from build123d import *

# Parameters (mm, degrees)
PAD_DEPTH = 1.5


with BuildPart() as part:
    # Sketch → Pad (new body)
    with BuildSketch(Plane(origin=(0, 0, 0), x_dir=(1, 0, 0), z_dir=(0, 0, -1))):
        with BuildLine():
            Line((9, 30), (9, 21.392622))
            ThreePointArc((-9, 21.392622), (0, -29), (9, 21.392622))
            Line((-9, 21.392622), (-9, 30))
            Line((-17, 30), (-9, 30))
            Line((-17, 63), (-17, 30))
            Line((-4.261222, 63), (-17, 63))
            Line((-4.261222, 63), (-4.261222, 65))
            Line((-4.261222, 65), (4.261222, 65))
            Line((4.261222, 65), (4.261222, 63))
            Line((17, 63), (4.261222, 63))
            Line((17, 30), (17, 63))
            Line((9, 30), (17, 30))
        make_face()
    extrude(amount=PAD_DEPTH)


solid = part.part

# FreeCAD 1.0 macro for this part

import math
import FreeCAD as App
import Part
import Sketcher
from FreeCAD import Vector
Q = App.Units.Quantity

doc = App.newDocument("Part")
body = doc.addObject("PartDesign::Body", "Body")

# Sketch on XY plane
sketch1 = body.newObject("Sketcher::SketchObject", "Sketch")
sketch1.AttachmentSupport = (doc.getObject("XY_Plane"), [""])
sketch1.MapMode = "FlatFace"
sketch1.addGeometry([
    Part.LineSegment(Vector(9, -21.4, 0), Vector(9, -30, 0)),  # 0
    Part.LineSegment(Vector(9, -30, 0), Vector(17, -30, 0)),  # 1
    Part.LineSegment(Vector(17, -30, 0), Vector(17, -63, 0)),  # 2
    Part.LineSegment(Vector(17, -63, 0), Vector(4.3, -63, 0)),  # 3
    Part.LineSegment(Vector(4.3, -63, 0), Vector(4.3, -65, 0)),  # 4
    Part.LineSegment(Vector(4.3, -65, 0), Vector(-4.3, -65, 0)),  # 5
    Part.LineSegment(Vector(-4.3, -65, 0), Vector(-4.3, -63, 0)),  # 6
    Part.LineSegment(Vector(-4.3, -63, 0), Vector(-17, -63, 0)),  # 7
    Part.LineSegment(Vector(-17, -63, 0), Vector(-17, -30, 0)),  # 8
    Part.LineSegment(Vector(-17, -30, 0), Vector(-9, -30, 0)),  # 9
    Part.LineSegment(Vector(-9, -30, 0), Vector(-9, -21.4, 0)),  # 10
    Part.ArcOfCircle(Part.Circle(Vector(0, 3, 0), Vector(0, 0, 1), 26), math.radians(-70), math.radians(250)),  # 11
], False)
sketch1.addConstraint([
    Sketcher.Constraint("Coincident", 0, 2, 1, 1),
    Sketcher.Constraint("Coincident", 1, 2, 2, 1),
    Sketcher.Constraint("Coincident", 2, 2, 3, 1),
    Sketcher.Constraint("Coincident", 3, 2, 4, 1),
    Sketcher.Constraint("Coincident", 4, 2, 5, 1),
    Sketcher.Constraint("Coincident", 5, 2, 6, 1),
    Sketcher.Constraint("Coincident", 6, 2, 7, 1),
    Sketcher.Constraint("Coincident", 7, 2, 8, 1),
    Sketcher.Constraint("Coincident", 8, 2, 9, 1),
    Sketcher.Constraint("Coincident", 9, 2, 10, 1),
    Sketcher.Constraint("Coincident", 10, 2, 11, 2),
    Sketcher.Constraint("Coincident", 11, 1, 0, 1),
    Sketcher.Constraint("Vertical", 0),
    Sketcher.Constraint("Horizontal", 1),
    Sketcher.Constraint("Vertical", 2),
    Sketcher.Constraint("Horizontal", 3),
    Sketcher.Constraint("Vertical", 4),
    Sketcher.Constraint("Horizontal", 5),
    Sketcher.Constraint("Vertical", 6),
    Sketcher.Constraint("Horizontal", 7),
    Sketcher.Constraint("Vertical", 8),
    Sketcher.Constraint("Horizontal", 9),
    Sketcher.Constraint("Vertical", 10),
    Sketcher.Constraint("Symmetric", 3, 2, 6, 2, -2),
    Sketcher.Constraint("Symmetric", 1, 2, 8, 2, -2),
    Sketcher.Constraint("Symmetric", 10, 2, 11, 1, -2),
    Sketcher.Constraint("Radius", 11, Q("26 mm")),
    Sketcher.Constraint("DistanceX", 1, 1, 1, 2, Q("8 mm")),
    Sketcher.Constraint("DistanceY", 2, 2, 2, 1, Q("33 mm")),
    Sketcher.Constraint("DistanceY", 4, 2, 4, 1, Q("2 mm")),
    Sketcher.Constraint("DistanceY", -1, 1, 11, 3, Q("3 mm")),
    Sketcher.Constraint("DistanceX", -1, 1, 0, 2, Q("9 mm")),
    Sketcher.Constraint("DistanceY", 0, 2, -1, 1, Q("30 mm")),
    Sketcher.Constraint("DistanceX", 3, 2, 3, 1, Q("12.738778 mm")),
])
pad1 = body.newObject("PartDesign::Pad", "Pad")
pad1.Profile = sketch1
pad1.Length = 1.5
pad1.Reversed = True

doc.recompute()
